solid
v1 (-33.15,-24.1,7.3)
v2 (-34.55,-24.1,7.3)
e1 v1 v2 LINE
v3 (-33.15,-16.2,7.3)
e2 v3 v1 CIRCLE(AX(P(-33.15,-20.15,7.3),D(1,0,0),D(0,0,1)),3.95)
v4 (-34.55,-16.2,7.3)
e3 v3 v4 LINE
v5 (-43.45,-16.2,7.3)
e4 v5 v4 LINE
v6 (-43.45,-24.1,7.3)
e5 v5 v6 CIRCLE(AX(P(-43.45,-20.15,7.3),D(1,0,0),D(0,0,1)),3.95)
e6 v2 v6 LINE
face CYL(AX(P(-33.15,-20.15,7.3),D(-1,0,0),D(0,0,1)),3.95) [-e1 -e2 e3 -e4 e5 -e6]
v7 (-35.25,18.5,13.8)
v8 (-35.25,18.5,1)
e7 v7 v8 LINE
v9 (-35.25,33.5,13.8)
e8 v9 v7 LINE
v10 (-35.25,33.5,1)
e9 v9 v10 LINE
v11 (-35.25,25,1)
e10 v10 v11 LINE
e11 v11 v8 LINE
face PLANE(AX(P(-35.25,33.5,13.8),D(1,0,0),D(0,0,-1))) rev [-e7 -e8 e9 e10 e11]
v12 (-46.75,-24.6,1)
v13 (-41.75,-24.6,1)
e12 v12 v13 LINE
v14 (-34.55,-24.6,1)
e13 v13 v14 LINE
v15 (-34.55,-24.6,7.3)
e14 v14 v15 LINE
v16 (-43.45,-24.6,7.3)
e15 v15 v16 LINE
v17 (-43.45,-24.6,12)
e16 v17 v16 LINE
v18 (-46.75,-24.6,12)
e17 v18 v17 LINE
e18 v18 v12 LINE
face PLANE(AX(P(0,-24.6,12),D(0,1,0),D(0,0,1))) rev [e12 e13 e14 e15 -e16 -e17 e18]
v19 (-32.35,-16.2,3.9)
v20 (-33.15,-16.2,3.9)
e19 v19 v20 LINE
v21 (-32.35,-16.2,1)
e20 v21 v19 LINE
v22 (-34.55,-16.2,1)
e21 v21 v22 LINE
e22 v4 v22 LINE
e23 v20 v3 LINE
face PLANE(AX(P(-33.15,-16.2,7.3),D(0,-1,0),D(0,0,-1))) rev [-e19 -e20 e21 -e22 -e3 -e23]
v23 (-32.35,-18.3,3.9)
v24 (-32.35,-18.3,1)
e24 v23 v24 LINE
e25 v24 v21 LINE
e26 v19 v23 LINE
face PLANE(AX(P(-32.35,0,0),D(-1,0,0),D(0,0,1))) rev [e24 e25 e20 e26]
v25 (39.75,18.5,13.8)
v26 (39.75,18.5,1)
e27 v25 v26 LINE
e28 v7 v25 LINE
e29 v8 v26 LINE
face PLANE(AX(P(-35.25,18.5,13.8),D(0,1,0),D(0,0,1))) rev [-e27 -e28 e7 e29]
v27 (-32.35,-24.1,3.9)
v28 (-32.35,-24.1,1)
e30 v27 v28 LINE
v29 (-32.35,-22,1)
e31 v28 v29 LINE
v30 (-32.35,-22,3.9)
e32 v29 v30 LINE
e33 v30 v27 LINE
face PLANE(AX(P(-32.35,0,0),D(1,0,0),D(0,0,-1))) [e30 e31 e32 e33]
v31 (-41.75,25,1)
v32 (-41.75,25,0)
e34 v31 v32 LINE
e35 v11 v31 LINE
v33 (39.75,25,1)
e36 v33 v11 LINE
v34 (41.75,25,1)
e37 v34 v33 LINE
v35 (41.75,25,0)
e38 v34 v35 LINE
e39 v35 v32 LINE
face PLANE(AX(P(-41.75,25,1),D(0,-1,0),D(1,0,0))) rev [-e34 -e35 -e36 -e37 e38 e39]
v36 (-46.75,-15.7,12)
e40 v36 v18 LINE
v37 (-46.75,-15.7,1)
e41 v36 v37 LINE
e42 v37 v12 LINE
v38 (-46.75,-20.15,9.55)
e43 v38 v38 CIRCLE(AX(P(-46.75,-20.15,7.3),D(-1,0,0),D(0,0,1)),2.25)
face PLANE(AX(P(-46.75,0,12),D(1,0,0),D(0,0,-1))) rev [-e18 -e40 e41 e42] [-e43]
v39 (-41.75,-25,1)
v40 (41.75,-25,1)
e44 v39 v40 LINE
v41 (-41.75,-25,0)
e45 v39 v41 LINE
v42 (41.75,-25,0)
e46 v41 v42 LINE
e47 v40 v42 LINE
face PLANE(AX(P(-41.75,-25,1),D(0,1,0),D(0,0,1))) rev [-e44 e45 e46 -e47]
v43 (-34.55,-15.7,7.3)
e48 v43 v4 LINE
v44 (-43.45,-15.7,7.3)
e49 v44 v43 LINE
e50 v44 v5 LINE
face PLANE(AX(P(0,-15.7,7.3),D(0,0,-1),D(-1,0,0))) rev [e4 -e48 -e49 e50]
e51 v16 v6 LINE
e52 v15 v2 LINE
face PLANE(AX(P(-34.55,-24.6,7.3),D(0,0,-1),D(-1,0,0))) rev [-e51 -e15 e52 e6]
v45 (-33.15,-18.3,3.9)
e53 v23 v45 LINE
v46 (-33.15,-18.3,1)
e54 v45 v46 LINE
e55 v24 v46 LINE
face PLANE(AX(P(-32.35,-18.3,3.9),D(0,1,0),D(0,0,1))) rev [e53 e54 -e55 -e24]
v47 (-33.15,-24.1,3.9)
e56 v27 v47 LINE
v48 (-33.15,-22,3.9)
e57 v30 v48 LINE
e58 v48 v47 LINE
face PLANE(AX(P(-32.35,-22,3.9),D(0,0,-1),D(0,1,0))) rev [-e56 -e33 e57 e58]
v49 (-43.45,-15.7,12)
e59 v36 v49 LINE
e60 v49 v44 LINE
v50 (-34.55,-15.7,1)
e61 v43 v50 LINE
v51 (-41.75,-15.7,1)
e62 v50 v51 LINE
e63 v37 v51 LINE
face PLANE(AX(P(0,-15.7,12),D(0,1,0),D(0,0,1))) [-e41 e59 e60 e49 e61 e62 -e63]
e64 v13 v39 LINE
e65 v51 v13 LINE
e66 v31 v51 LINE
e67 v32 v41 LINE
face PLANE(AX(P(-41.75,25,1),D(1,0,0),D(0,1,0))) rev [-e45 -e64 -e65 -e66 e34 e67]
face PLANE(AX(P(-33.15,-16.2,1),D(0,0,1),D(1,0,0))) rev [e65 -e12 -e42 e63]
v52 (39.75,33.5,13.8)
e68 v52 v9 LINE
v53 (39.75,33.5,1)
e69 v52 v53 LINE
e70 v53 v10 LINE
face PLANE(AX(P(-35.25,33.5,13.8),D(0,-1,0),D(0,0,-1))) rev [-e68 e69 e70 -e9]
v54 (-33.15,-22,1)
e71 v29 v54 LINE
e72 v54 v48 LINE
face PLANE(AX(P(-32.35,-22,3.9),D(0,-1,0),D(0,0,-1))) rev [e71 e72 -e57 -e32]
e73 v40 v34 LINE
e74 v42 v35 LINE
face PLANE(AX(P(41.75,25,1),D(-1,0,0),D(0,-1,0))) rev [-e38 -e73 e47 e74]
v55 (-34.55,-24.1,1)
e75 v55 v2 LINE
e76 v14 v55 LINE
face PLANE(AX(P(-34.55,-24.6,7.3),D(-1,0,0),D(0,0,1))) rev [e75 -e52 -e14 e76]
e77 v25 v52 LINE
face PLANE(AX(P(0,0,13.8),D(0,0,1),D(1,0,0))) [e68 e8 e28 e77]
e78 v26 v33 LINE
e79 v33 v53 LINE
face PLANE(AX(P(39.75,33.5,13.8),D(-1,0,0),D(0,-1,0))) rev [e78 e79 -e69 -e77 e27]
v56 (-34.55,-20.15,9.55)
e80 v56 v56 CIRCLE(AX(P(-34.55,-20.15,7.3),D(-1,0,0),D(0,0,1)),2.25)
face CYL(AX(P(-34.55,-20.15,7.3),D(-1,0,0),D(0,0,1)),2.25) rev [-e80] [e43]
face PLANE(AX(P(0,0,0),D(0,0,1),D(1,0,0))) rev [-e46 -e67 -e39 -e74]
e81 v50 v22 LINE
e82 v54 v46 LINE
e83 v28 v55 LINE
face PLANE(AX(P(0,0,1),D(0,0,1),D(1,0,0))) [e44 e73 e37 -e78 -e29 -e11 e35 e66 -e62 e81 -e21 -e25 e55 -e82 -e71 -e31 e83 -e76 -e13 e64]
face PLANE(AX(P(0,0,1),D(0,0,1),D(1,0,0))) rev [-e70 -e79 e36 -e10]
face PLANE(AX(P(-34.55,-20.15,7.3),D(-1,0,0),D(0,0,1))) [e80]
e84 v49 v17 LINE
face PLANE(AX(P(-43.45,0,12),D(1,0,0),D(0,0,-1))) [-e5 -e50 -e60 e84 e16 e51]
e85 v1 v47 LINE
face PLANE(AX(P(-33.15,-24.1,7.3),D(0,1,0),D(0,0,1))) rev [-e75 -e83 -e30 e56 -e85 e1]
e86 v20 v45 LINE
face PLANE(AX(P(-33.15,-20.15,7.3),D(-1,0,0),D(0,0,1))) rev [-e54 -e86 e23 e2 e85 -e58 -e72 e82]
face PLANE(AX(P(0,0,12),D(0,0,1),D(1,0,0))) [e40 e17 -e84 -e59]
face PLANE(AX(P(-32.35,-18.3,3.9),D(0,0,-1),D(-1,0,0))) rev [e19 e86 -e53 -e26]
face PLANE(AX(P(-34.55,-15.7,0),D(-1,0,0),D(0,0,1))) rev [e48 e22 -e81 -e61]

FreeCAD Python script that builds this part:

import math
import FreeCAD as App
import Part
import Sketcher
Q = App.Units.Quantity


def add_polygon(sketch, points):
    """Adds a closed chain of lines whose ends are joined by coincident constraints."""
    first, n = sketch.GeometryCount, len(points)
    for a, b in zip(points, points[1:] + points[:1]):
        sketch.addGeometry(Part.LineSegment(App.Vector(*a, 0), App.Vector(*b, 0)), False)
    for i in range(n):
        sketch.addConstraint(Sketcher.Constraint("Coincident", first + i, 2, first + (i + 1) % n, 1))

doc = App.newDocument("Part")
params = doc.addObject("Spreadsheet::Sheet", "Params")
for row, (alias, value) in enumerate([
    ("sketch1_height", "50 mm"),
    ("sketch1_width", "83.5 mm"),
    ("pad1_length", "1 mm"),
    ("sketch2_width", "75 mm"),
    ("sketch2_height", "15 mm"),
    ("pad2_length", "12.8 mm"),
    ("sketch3_width", "3.3 mm"),
    ("sketch3_height", "8.9 mm"),
    ("pad3_length", "11 mm"),
    ("sketch4_radius", "3.95 mm"),
    ("sketch4_height", "6.3 mm"),
    ("pad4_length", "10.3 mm"),
    ("sketch5_width", "8.9 mm"),
    ("sketch5_height", "6.3 mm"),
    ("pad5_length", "0.5 mm"),
    ("sketch6_width", "8.9 mm"),
    ("sketch6_height", "6.3 mm"),
    ("pad6_length", "0.5 mm"),
    ("sketch7_width", "2.1 mm"),
    ("sketch7_height", "2.9 mm"),
    ("pad7_length", "0.8 mm"),
    ("sketch8_diameter", "4.5 mm"),
    ("pocket1_length", "12.2 mm"),
], start=1):
    params.set(f"A{row}", alias)
    params.set(f"B{row}", "=" + value)
    params.setAlias(f"B{row}", alias)

body = doc.addObject("PartDesign::Body", "Body")

# Sketch on XY plane
sketch1 = doc.addObject("Sketcher::SketchObject", "Sketch")
body.addObject(sketch1)
sketch1.AttachmentSupport = (doc.XY_Plane, [""])
sketch1.MapMode = "FlatFace"
add_polygon(sketch1, [(-42, 25), (-42, -25), (42, -25), (42, 25)])  # lines 0-3
sketch1.addConstraint([
    Sketcher.Constraint("Vertical", 0),
    Sketcher.Constraint("Horizontal", 1),
    Sketcher.Constraint("Vertical", 2),
    Sketcher.Constraint("Horizontal", 3),
    Sketcher.Constraint("Symmetric", 0, 2, 2, 2, -1, 1),
    Sketcher.Constraint("DistanceY", 0, 2, 0, 1, Q("50 mm")),
    Sketcher.Constraint("DistanceX", 1, 1, 1, 2, Q("83.5 mm")),
])
sketch1.setExpression("Constraints[9]", "Params.sketch1_height")
sketch1.setExpression("Constraints[10]", "Params.sketch1_width")
pad1 = doc.addObject("PartDesign::Pad", "Pad")
body.addObject(pad1)
pad1.Profile = sketch1
pad1.setExpression("Length", "Params.pad1_length")

# Sketch on XY plane
sketch2 = doc.addObject("Sketcher::SketchObject", "Sketch001")
body.addObject(sketch2)
sketch2.AttachmentSupport = (doc.XY_Plane, [""])
sketch2.MapMode = "FlatFace"
sketch2.AttachmentOffset = App.Placement(App.Vector(0, 0, 1), App.Rotation())
add_polygon(sketch2, [(-35, 34), (-35, 18), (40, 18), (40, 34)])  # lines 0-3
sketch2.addConstraint([
    Sketcher.Constraint("Vertical", 0),
    Sketcher.Constraint("Horizontal", 1),
    Sketcher.Constraint("Vertical", 2),
    Sketcher.Constraint("Horizontal", 3),
    Sketcher.Constraint("DistanceX", 1, 1, 1, 2, Q("75 mm")),
    Sketcher.Constraint("DistanceY", 0, 2, 0, 1, Q("15 mm")),
    Sketcher.Constraint("DistanceY", -1, 1, 0, 2, Q("18.5 mm")),
    Sketcher.Constraint("DistanceX", 0, 2, -1, 1, Q("35.25 mm")),
])
sketch2.setExpression("Constraints[8]", "Params.sketch2_width")
sketch2.setExpression("Constraints[9]", "Params.sketch2_height")
pad2 = doc.addObject("PartDesign::Pad", "Pad001")
body.addObject(pad2)
pad2.Profile = sketch2
pad2.setExpression("Length", "Params.pad2_length")
body2 = doc.addObject("PartDesign::Body", "Body001")

# Sketch on XY plane
sketch3 = doc.addObject("Sketcher::SketchObject", "Sketch002")
body2.addObject(sketch3)
sketch3.AttachmentSupport = (doc.getObject("XY_Plane001"), [""])
sketch3.MapMode = "FlatFace"
sketch3.AttachmentOffset = App.Placement(App.Vector(0, 0, 1), App.Rotation())
add_polygon(sketch3, [(-46.8, -15.7), (-46.8, -24.6), (-43.5, -24.6), (-43.5, -15.7)])  # lines 0-3
sketch3.addConstraint([
    Sketcher.Constraint("Vertical", 0),
    Sketcher.Constraint("Horizontal", 1),
    Sketcher.Constraint("Vertical", 2),
    Sketcher.Constraint("Horizontal", 3),
    Sketcher.Constraint("DistanceX", 1, 1, 1, 2, Q("3.3 mm")),
    Sketcher.Constraint("DistanceY", 0, 2, 0, 1, Q("8.9 mm")),
    Sketcher.Constraint("DistanceY", 0, 2, -1, 1, Q("24.6 mm")),
    Sketcher.Constraint("DistanceX", 0, 2, -1, 1, Q("46.75 mm")),
])
sketch3.setExpression("Constraints[8]", "Params.sketch3_width")
sketch3.setExpression("Constraints[9]", "Params.sketch3_height")
pad3 = doc.addObject("PartDesign::Pad", "Pad002")
body2.addObject(pad3)
pad3.Profile = sketch3
pad3.setExpression("Length", "Params.pad3_length")
body.AllowCompound = True
doc.recompute()

boolean = doc.addObject("PartDesign::Boolean", "Boolean")
body.addObject(boolean)
boolean.Type = "Fuse"
boolean.addObjects([body2])

# Sketch on YZ plane
sketch4 = doc.addObject("Sketcher::SketchObject", "Sketch003")
body.addObject(sketch4)
sketch4.AttachmentSupport = (doc.YZ_Plane, [""])
sketch4.MapMode = "FlatFace"
sketch4.AttachmentOffset = App.Placement(App.Vector(0, 0, -43.45), App.Rotation())
sketch4.addGeometry([
    Part.LineSegment(App.Vector(-16.2, 1, 0), App.Vector(-16.2, 7.3, 0)),
    Part.ArcOfCircle(Part.Circle(App.Vector(-20.1, 7.3, 0), App.Vector(0, 0, 1), 4), math.radians(0), math.radians(180)),
    Part.LineSegment(App.Vector(-24.1, 7.3, 0), App.Vector(-24.1, 1, 0)),
    Part.LineSegment(App.Vector(-24.1, 1, 0), App.Vector(-16.2, 1, 0)),
], False)
sketch4.addConstraint([
    Sketcher.Constraint("Tangent", 0, 2, 1, 1),
    Sketcher.Constraint("Tangent", 1, 2, 2, 1),
    Sketcher.Constraint("Coincident", 2, 2, 3, 1),
    Sketcher.Constraint("Coincident", 3, 2, 0, 1),
    Sketcher.Constraint("Vertical", 0),
    Sketcher.Constraint("Vertical", 2),
    Sketcher.Constraint("Horizontal", 3),
    Sketcher.Constraint("Radius", 1, Q("3.95 mm")),
    Sketcher.Constraint("DistanceY", 0, 1, 0, 2, Q("6.3 mm")),
    Sketcher.Constraint("DistanceY", -1, 1, 2, 2, Q("1 mm")),
    Sketcher.Constraint("DistanceX", 0, 2, -1, 1, Q("16.2 mm")),
])
sketch4.setExpression("Constraints[7]", "Params.sketch4_radius")
sketch4.setExpression("Constraints[8]", "Params.sketch4_height")
pad4 = doc.addObject("PartDesign::Pad", "Pad003")
body.addObject(pad4)
pad4.Profile = sketch4
pad4.setExpression("Length", "Params.pad4_length")

# Sketch on XZ plane
sketch5 = doc.addObject("Sketcher::SketchObject", "Sketch004")
body.addObject(sketch5)
sketch5.AttachmentSupport = (doc.XZ_Plane, [""])
sketch5.MapMode = "FlatFace"
sketch5.AttachmentOffset = App.Placement(App.Vector(0, 0, 24.1), App.Rotation())
add_polygon(sketch5, [(-35, 1), (-35, 7), (-43, 7), (-43, 1)])  # lines 0-3
sketch5.addConstraint([
    Sketcher.Constraint("Vertical", 0),
    Sketcher.Constraint("Horizontal", 1),
    Sketcher.Constraint("Vertical", 2),
    Sketcher.Constraint("Horizontal", 3),
    Sketcher.Constraint("DistanceX", 1, 2, 1, 1, Q("8.9 mm")),
    Sketcher.Constraint("DistanceY", 0, 1, 0, 2, Q("6.3 mm")),
    Sketcher.Constraint("DistanceY", -1, 1, 2, 2, Q("1 mm")),
    Sketcher.Constraint("DistanceX", 0, 2, -1, 1, Q("34.55 mm")),
])
sketch5.setExpression("Constraints[8]", "Params.sketch5_width")
sketch5.setExpression("Constraints[9]", "Params.sketch5_height")
pad5 = doc.addObject("PartDesign::Pad", "Pad004")
body.addObject(pad5)
pad5.Profile = sketch5
pad5.setExpression("Length", "Params.pad5_length")

# Sketch on XZ plane
sketch6 = doc.addObject("Sketcher::SketchObject", "Sketch005")
body.addObject(sketch6)
sketch6.AttachmentSupport = (doc.XZ_Plane, [""])
sketch6.MapMode = "FlatFace"
sketch6.AttachmentOffset = App.Placement(App.Vector(0, 0, 16.2), App.Rotation())
add_polygon(sketch6, [(-43, 7), (-35, 7), (-35, 1), (-43, 1)])  # lines 0-3
sketch6.addConstraint([
    Sketcher.Constraint("Horizontal", 0),
    Sketcher.Constraint("Vertical", 1),
    Sketcher.Constraint("Horizontal", 2),
    Sketcher.Constraint("Vertical", 3),
    Sketcher.Constraint("DistanceX", 0, 1, 0, 2, Q("8.9 mm")),
    Sketcher.Constraint("DistanceY", 1, 2, 1, 1, Q("6.3 mm")),
    Sketcher.Constraint("DistanceY", -1, 1, 1, 2, Q("1 mm")),
    Sketcher.Constraint("DistanceX", 0, 2, -1, 1, Q("34.55 mm")),
])
sketch6.setExpression("Constraints[8]", "Params.sketch6_width")
sketch6.setExpression("Constraints[9]", "Params.sketch6_height")
pad6 = doc.addObject("PartDesign::Pad", "Pad005")
body.addObject(pad6)
pad6.Profile = sketch6
pad6.setExpression("Length", "Params.pad6_length")
pad6.Reversed = True

# Sketch on YZ plane
sketch7 = doc.addObject("Sketcher::SketchObject", "Sketch006")
body.addObject(sketch7)
sketch7.AttachmentSupport = (doc.YZ_Plane, [""])
sketch7.MapMode = "FlatFace"
sketch7.AttachmentOffset = App.Placement(App.Vector(0, 0, -33.15), App.Rotation())
add_polygon(sketch7, [(-22, 3.9), (-24.1, 3.9), (-24.1, 1), (-22, 1)])  # lines 0-3
add_polygon(sketch7, [(-16.2, 3.9), (-18.3, 3.9), (-18.3, 1), (-16.2, 1)])  # lines 4-7
sketch7.addConstraint([
    Sketcher.Constraint("Horizontal", 0),
    Sketcher.Constraint("Vertical", 1),
    Sketcher.Constraint("Horizontal", 2),
    Sketcher.Constraint("Vertical", 3),
    Sketcher.Constraint("Horizontal", 4),
    Sketcher.Constraint("Vertical", 5),
    Sketcher.Constraint("Horizontal", 6),
    Sketcher.Constraint("Vertical", 7),
    Sketcher.Constraint("Horizontal", 3, 2, 4, 2),
    Sketcher.Constraint("Horizontal", 2, 2, 5, 2),
    Sketcher.Constraint("Equal", 2, 4),
    Sketcher.Constraint("DistanceX", 0, 2, 0, 1, Q("2.1 mm")),
    Sketcher.Constraint("DistanceY", 1, 2, 1, 1, Q("2.9 mm")),
    Sketcher.Constraint("DistanceY", -1, 1, 1, 2, Q("1 mm")),
    Sketcher.Constraint("DistanceX", 2, 2, -1, 1, Q("22 mm")),
    Sketcher.Constraint("DistanceX", 4, 2, -1, 1, Q("18.3 mm")),
])
sketch7.setExpression("Constraints[19]", "Params.sketch7_width")
sketch7.setExpression("Constraints[20]", "Params.sketch7_height")
pad7 = doc.addObject("PartDesign::Pad", "Pad006")
body.addObject(pad7)
pad7.Profile = sketch7
pad7.setExpression("Length", "Params.pad7_length")

# Sketch on YZ plane
sketch8 = doc.addObject("Sketcher::SketchObject", "Sketch007")
body.addObject(sketch8)
sketch8.AttachmentSupport = (doc.YZ_Plane, [""])
sketch8.MapMode = "FlatFace"
sketch8.AttachmentOffset = App.Placement(App.Vector(0, 0, -46.75), App.Rotation())
sketch8.addGeometry(Part.Circle(App.Vector(-20.1, 7.3, 0), App.Vector(0, 0, 1), 2.2), False)
sketch8.addConstraint([
    Sketcher.Constraint("Diameter", 0, Q("4.5 mm")),
    Sketcher.Constraint("DistanceY", -1, 1, 0, 3, Q("7.3 mm")),
    Sketcher.Constraint("DistanceX", 0, 3, -1, 1, Q("20.15 mm")),
])
sketch8.setExpression("Constraints[0]", "Params.sketch8_diameter")
pocket1 = doc.addObject("PartDesign::Pocket", "Pocket")
body.addObject(pocket1)
pocket1.Profile = sketch8
pocket1.setExpression("Length", "Params.pocket1_length")
pocket1.Reversed = True

doc.recompute()
